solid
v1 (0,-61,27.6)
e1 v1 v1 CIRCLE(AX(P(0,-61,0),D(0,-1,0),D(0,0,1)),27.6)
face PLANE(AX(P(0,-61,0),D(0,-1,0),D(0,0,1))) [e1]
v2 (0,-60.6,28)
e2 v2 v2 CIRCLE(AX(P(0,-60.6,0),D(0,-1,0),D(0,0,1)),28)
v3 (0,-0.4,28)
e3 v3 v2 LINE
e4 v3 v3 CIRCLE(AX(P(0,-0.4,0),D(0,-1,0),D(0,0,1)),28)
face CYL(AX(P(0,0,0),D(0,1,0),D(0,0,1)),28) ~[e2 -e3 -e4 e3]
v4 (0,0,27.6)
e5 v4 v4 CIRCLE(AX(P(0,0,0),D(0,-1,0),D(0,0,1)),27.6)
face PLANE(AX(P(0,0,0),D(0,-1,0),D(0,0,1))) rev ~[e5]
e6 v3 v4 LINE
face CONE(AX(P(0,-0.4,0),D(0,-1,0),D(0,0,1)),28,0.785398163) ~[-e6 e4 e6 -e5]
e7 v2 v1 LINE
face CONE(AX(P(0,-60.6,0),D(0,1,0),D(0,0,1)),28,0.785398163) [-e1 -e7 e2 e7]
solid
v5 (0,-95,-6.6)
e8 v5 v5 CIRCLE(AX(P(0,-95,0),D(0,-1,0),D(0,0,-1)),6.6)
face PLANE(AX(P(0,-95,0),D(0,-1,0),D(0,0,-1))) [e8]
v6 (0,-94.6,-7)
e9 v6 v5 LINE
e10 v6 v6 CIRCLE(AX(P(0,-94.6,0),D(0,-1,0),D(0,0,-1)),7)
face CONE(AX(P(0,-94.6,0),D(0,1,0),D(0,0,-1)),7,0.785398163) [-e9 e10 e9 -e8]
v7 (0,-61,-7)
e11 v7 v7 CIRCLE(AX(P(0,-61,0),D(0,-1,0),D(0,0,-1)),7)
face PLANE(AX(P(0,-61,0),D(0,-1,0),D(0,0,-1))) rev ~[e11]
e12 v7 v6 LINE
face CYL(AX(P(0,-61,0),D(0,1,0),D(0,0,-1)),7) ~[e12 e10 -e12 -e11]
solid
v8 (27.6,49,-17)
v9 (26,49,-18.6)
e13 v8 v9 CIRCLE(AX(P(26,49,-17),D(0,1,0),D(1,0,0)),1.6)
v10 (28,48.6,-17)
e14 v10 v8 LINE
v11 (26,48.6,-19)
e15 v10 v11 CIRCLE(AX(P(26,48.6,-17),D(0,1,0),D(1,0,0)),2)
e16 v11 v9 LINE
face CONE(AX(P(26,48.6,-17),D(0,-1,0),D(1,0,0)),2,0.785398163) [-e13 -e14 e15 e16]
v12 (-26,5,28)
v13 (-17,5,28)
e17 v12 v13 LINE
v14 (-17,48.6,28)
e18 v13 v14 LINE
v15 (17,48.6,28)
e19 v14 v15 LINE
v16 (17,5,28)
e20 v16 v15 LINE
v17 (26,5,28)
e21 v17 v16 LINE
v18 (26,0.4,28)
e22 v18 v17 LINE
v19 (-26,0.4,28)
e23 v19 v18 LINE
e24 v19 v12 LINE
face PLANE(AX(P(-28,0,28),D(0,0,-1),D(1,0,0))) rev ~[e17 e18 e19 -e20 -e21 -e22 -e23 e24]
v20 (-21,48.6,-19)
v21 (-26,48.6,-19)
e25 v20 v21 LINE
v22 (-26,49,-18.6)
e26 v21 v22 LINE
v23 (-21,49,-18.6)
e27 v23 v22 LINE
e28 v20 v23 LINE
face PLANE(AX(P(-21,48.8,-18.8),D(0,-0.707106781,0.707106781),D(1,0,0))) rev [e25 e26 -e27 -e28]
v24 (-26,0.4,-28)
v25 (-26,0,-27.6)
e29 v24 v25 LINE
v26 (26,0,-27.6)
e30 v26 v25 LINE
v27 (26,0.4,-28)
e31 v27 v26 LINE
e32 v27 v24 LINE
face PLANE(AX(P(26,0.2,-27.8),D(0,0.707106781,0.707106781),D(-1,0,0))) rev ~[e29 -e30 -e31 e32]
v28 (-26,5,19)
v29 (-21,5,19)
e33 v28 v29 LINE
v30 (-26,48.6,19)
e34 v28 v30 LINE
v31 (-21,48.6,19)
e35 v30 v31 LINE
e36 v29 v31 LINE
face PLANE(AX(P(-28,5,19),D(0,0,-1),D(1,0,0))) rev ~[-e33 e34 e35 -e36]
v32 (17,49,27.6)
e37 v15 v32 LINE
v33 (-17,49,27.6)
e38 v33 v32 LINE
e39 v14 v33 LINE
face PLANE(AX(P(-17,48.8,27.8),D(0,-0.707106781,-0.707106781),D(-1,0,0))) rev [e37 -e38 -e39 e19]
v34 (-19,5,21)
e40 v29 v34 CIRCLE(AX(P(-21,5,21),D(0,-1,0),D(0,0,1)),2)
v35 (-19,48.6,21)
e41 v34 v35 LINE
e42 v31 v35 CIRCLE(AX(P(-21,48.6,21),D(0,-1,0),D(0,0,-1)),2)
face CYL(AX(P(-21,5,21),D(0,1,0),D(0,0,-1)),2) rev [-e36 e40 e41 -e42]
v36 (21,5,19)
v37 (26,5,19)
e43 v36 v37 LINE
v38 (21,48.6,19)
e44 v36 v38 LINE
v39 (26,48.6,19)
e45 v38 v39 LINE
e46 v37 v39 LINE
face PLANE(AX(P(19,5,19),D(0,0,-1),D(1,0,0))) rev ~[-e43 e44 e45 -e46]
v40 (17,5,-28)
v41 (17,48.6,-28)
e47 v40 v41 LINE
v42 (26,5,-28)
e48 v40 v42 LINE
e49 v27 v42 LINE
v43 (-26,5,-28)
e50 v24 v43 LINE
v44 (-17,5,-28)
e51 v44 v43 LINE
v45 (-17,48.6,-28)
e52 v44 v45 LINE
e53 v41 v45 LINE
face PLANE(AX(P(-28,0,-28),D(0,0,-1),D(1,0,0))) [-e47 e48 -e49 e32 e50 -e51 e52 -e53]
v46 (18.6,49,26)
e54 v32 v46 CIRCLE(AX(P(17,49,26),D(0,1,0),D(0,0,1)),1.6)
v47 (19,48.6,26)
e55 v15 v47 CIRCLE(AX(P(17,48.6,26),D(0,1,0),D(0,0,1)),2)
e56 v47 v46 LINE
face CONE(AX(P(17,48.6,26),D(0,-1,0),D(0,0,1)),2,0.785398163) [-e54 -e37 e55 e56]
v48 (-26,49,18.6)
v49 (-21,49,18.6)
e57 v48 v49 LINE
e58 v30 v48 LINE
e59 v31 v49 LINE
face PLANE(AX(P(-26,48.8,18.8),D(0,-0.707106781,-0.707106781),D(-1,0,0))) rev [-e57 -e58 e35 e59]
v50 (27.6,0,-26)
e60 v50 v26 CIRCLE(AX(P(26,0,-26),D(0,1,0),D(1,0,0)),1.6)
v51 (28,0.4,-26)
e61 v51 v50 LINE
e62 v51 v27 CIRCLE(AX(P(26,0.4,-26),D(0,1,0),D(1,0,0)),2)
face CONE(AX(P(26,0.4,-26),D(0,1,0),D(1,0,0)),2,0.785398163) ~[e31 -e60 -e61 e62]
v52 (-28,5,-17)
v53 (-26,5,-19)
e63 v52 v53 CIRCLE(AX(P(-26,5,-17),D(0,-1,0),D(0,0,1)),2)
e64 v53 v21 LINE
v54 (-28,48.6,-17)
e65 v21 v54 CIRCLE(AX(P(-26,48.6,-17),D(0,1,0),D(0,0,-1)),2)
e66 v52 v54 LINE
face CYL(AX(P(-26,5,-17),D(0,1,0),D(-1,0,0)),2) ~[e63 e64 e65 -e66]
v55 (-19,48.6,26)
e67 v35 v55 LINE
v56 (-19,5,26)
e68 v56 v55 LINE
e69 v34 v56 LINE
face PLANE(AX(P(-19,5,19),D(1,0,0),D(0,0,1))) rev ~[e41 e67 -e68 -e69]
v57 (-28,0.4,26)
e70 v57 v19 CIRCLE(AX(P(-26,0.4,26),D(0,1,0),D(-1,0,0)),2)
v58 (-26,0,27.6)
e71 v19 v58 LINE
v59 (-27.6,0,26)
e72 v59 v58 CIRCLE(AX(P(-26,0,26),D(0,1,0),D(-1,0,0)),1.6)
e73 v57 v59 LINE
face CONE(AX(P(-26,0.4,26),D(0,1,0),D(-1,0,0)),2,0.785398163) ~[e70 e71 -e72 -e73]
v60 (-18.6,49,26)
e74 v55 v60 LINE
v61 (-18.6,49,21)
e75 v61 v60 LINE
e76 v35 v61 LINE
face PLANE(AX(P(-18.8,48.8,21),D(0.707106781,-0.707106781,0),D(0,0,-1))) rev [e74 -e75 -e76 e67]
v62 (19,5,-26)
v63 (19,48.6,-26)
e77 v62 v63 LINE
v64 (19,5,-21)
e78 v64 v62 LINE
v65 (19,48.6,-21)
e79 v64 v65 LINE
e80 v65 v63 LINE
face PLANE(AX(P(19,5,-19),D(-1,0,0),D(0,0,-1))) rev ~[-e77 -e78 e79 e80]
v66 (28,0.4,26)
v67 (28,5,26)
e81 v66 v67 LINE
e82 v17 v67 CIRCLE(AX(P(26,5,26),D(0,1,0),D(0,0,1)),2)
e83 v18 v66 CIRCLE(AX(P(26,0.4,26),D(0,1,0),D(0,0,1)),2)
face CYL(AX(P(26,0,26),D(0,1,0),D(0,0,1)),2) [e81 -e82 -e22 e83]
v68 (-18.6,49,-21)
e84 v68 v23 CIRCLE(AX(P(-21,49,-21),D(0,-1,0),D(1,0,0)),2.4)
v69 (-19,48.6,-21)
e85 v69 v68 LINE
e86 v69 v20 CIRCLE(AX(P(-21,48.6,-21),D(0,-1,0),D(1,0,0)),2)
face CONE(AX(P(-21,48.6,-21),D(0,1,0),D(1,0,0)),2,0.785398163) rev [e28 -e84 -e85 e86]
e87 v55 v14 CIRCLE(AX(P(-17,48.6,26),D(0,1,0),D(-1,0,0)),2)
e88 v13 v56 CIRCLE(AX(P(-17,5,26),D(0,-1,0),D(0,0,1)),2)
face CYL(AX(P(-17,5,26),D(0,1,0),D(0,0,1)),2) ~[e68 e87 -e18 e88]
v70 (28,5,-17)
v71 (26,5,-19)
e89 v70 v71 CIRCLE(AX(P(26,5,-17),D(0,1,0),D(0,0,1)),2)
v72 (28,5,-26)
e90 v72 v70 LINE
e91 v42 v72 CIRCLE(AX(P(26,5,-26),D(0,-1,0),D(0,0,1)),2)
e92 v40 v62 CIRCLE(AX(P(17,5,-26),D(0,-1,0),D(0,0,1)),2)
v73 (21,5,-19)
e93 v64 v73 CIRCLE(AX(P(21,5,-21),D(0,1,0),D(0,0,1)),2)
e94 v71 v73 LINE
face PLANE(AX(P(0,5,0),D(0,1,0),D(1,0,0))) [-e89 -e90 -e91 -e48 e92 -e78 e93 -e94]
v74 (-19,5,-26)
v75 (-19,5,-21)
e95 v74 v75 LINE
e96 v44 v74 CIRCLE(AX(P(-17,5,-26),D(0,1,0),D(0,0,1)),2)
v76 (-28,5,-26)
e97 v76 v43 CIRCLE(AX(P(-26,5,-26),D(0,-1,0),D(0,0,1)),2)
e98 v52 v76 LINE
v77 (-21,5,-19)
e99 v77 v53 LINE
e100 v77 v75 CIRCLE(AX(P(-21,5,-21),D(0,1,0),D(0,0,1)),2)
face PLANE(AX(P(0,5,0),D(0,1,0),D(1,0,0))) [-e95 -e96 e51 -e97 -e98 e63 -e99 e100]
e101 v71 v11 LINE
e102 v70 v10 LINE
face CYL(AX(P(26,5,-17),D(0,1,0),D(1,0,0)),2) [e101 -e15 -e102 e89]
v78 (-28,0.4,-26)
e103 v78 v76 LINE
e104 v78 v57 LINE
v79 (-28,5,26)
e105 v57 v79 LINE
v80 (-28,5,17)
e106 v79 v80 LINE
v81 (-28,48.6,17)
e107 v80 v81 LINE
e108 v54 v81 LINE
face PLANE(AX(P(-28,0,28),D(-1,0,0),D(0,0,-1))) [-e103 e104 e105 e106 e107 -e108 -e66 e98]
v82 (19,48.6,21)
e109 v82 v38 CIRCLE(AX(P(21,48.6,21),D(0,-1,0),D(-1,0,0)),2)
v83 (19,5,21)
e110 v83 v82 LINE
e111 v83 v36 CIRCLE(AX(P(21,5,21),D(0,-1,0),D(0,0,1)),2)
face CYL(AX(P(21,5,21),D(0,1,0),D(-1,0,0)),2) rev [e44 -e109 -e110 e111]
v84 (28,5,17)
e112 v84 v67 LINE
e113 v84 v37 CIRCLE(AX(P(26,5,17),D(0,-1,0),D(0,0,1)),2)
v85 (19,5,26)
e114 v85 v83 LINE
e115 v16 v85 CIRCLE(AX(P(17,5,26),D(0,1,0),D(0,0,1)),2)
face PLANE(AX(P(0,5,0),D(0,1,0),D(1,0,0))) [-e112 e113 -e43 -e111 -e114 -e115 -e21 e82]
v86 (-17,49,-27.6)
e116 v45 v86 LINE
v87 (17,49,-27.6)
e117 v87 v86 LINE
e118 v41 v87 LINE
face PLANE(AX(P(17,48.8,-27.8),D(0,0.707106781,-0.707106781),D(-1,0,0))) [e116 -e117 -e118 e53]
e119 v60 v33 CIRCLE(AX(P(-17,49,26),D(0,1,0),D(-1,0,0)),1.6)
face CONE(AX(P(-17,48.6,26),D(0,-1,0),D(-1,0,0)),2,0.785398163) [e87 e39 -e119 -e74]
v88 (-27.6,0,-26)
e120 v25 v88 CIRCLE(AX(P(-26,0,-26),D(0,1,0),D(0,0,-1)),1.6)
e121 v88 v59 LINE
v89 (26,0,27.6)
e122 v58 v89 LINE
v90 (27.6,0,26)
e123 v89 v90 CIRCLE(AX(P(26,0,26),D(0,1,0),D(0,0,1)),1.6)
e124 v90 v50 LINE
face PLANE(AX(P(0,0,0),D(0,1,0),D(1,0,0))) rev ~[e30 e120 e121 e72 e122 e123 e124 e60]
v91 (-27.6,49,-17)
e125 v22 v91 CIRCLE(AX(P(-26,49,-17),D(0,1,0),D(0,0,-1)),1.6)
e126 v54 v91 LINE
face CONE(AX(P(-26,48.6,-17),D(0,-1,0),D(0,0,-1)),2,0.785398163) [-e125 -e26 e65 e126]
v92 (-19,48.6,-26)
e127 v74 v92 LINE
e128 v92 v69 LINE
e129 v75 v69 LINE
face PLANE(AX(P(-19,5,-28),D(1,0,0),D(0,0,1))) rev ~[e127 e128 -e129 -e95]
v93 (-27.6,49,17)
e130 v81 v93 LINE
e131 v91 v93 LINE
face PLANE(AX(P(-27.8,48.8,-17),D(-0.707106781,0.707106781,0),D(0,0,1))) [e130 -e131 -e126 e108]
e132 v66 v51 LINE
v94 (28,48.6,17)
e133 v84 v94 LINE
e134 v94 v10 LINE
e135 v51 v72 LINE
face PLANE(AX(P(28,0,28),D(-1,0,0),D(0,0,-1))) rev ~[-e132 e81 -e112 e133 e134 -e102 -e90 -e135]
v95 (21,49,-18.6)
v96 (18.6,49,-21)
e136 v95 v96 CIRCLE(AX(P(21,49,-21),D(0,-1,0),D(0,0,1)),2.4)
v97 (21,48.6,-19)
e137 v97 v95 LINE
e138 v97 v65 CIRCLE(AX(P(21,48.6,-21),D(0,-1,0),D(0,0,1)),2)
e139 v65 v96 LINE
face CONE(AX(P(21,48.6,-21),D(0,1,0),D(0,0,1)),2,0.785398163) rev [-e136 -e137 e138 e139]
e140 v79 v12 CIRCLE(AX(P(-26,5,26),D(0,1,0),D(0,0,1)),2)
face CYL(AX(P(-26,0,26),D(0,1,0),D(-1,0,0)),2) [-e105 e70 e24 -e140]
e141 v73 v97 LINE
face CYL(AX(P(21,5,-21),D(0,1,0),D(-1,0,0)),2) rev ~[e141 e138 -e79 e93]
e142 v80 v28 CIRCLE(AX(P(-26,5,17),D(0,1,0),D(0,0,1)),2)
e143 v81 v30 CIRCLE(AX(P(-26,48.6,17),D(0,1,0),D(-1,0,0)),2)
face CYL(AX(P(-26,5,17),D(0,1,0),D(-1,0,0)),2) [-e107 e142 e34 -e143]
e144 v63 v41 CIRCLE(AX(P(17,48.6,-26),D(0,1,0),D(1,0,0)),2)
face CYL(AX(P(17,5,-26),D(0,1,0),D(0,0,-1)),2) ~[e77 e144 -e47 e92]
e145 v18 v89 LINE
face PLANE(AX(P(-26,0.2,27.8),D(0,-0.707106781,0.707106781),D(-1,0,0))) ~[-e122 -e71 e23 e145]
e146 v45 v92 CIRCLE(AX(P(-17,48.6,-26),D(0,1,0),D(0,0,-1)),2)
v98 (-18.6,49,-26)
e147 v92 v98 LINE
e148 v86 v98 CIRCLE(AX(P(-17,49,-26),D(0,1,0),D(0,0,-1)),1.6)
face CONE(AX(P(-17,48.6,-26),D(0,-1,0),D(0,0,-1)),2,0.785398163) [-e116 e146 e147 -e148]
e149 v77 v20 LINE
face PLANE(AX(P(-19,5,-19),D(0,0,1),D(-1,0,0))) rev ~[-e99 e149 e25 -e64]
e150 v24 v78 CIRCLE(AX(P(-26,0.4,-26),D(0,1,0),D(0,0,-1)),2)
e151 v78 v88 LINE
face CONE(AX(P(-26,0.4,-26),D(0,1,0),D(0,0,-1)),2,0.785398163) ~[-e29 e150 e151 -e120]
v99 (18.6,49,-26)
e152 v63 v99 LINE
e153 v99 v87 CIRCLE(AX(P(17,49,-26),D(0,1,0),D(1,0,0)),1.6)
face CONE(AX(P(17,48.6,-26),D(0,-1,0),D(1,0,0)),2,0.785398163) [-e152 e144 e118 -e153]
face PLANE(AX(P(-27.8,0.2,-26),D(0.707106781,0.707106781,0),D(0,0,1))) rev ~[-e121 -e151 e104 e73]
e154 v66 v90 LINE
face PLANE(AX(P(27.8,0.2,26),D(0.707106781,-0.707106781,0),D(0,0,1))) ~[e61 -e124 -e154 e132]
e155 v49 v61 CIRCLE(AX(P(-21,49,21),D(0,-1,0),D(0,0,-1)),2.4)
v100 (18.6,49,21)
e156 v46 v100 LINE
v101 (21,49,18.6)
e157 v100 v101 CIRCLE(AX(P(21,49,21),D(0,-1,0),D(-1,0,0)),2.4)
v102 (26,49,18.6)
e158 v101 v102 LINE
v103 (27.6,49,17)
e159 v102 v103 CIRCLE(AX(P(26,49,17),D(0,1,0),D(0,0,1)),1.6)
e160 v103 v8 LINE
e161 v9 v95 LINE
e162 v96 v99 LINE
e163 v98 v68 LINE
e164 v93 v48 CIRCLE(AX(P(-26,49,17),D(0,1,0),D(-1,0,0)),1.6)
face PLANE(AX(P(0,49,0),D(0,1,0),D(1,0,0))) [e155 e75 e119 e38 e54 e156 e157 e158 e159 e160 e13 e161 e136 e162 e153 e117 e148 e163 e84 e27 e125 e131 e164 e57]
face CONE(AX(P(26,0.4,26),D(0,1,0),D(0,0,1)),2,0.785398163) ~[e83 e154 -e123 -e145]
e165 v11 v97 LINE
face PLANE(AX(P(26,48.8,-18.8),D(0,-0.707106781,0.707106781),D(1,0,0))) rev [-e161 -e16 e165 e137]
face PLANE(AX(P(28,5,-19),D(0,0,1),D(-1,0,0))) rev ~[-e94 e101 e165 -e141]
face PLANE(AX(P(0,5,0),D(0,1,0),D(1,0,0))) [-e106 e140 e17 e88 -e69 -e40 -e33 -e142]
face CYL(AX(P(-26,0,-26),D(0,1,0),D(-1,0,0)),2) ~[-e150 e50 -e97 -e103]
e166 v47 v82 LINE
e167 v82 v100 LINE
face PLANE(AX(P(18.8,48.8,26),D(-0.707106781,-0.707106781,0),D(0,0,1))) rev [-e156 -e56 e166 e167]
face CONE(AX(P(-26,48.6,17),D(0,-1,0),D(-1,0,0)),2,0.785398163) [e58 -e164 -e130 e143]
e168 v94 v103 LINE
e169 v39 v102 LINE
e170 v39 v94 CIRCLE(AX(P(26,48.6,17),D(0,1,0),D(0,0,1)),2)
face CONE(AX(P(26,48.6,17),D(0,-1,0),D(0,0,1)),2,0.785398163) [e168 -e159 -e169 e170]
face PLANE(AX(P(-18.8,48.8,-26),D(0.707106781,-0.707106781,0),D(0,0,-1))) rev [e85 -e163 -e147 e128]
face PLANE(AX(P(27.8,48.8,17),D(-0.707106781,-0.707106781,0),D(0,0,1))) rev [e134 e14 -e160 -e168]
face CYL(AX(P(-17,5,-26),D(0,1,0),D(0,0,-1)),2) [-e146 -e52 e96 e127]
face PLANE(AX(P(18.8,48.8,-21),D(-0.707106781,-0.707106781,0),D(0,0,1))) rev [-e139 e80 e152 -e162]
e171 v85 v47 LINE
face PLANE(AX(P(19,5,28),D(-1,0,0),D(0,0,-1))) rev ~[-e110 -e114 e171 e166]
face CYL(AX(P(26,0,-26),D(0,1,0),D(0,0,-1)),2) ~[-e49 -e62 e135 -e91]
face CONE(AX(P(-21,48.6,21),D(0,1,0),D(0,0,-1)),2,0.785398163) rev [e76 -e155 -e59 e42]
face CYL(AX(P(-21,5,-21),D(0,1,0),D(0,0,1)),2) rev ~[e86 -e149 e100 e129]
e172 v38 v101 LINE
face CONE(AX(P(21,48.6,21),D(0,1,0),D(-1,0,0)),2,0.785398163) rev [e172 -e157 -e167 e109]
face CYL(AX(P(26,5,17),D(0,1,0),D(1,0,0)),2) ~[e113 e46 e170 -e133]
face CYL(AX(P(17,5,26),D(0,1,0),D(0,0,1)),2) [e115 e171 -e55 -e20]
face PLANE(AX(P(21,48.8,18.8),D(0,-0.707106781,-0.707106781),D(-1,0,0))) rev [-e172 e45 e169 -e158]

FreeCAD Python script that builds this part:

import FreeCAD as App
import Part
import Sketcher

V = App.Vector
Q = App.Units.Quantity


def edges_at(feature, points):
    """Names of the edges that pass closest to the given points."""
    edges = feature.Shape.Edges
    near = lambda p: min(range(len(edges)), key=lambda i: edges[i].distToShape(Part.Vertex(*p))[0])
    return sorted({f"Edge{near(p) + 1}" for p in points})


def add_polygon(sketch, points):
    """Adds a closed chain of lines whose ends are joined by coincident constraints."""
    first, n = sketch.GeometryCount, len(points)
    for a, b in zip(points, points[1:] + points[:1]):
        sketch.addGeometry(Part.LineSegment(App.Vector(*a, 0), App.Vector(*b, 0)), False)
    for i in range(n):
        sketch.addConstraint(Sketcher.Constraint("Coincident", first + i, 2, first + (i + 1) % n, 1))

doc = App.newDocument("Part")
body = doc.addObject("PartDesign::Body", "Body")

# Sketch on XZ plane
sketch1 = body.newObject("Sketcher::SketchObject", "Sketch")
sketch1.AttachmentSupport = (doc.getObject("XZ_Plane"), [""])
sketch1.MapMode = "FlatFace"
add_polygon(sketch1, [(-28, -28), (-28, 28), (28, 28), (28, -28)])  # lines 0-3
sketch1.addConstraint([
    Sketcher.Constraint("Vertical", 0),
    Sketcher.Constraint("Horizontal", 1),
    Sketcher.Constraint("Vertical", 2),
    Sketcher.Constraint("Horizontal", 3),
    Sketcher.Constraint("Symmetric", 0, 2, 2, 2, -1, 1),
    Sketcher.Constraint("Equal", 3, 0),
    Sketcher.Constraint("DistanceX", 1, 1, 1, 2, Q("56 mm")),
])
pad1 = body.newObject("PartDesign::Pad", "Pad")
pad1.Profile = sketch1
pad1.Length = 5
pad1.Reversed = True

# Sketch on XZ plane
sketch2 = body.newObject("Sketcher::SketchObject", "Sketch001")
sketch2.AttachmentSupport = (doc.getObject("XZ_Plane"), [""])
sketch2.MapMode = "FlatFace"
sketch2.AttachmentOffset = App.Placement(V(0, 0, -5), App.Rotation())
add_polygon(sketch2, [(-19, -19), (-28, -19), (-28, 19), (-19, 19), (-19, 28), (19, 28), (19, 19), (28, 19), (28, -19), (19, -19), (19, -28), (-19, -28)])  # lines 0-11
sketch2.addConstraint([
    Sketcher.Constraint("Horizontal", 0),
    Sketcher.Constraint("Vertical", 1),
    Sketcher.Constraint("Horizontal", 2),
    Sketcher.Constraint("Vertical", 3),
    Sketcher.Constraint("Horizontal", 4),
    Sketcher.Constraint("Vertical", 5),
    Sketcher.Constraint("Horizontal", 6),
    Sketcher.Constraint("Vertical", 7),
    Sketcher.Constraint("Horizontal", 8),
    Sketcher.Constraint("Vertical", 9),
    Sketcher.Constraint("Horizontal", 10),
    Sketcher.Constraint("Vertical", 11),
    Sketcher.Constraint("Symmetric", 0, 2, 6, 2, -1, 1),
    Sketcher.Constraint("Symmetric", 2, 2, 8, 2, -1, 1),
    Sketcher.Constraint("Symmetric", 4, 2, 10, 2, -1, 1),
    Sketcher.Constraint("Symmetric", 2, 2, 5, 2, -2),
    Sketcher.Constraint("Equal", 10, 1),
    Sketcher.Constraint("Equal", 8, 3),
    Sketcher.Constraint("DistanceX", 0, 2, 0, 1, Q("9 mm")),
    Sketcher.Constraint("DistanceX", 4, 1, 4, 2, Q("38 mm")),
])
pad2 = body.newObject("PartDesign::Pad", "Pad001")
pad2.Profile = sketch2
pad2.Length = 44
pad2.Reversed = True
doc.recompute()

fillet = body.newObject("PartDesign::Fillet", "Fillet")
fillet.Base = (pad2, edges_at(pad2, [
    (-28, 27, 19),
    (-19, 27, 19),
    (-19, 27, 28),
    (19, 27, 28),
    (19, 27, 19),
    (28, 27, 19),
    (28, 27, -19),
    (19, 27, -19),
    (19, 27, -28),
    (-19, 27, -28),
    (-19, 27, -19),
    (-28, 27, -19),
    (28, 2.5, 28),
    (-28, 2.5, 28),
    (-28, 2.5, -28),
    (28, 2.5, -28),
]))
fillet.Radius = 2
doc.recompute()

chamfer = body.newObject("PartDesign::Chamfer", "Chamfer")
chamfer.Base = (fillet, edges_at(fillet, [
    (-19.586, 49, 19.586),
    (19.586, 49, 19.586),
    (19.586, 49, -19.586),
    (-19.586, 49, -19.586),
    (0, 0, 28),
    (0, 49, 28),
    (28, 0, 0),
    (-28, 0, 0),
    (0, 0, -28),
    (-27.414, 0, -27.414),
    (27.414, 0, -27.414),
    (27.414, 0, 27.414),
    (-27.414, 0, 27.414),
    (-28, 49, 0),
    (-19, 49, 23.5),
    (-23.5, 49, 19),
    (19, 49, 23.5),
    (23.5, 49, 19),
    (28, 49, 0),
    (23.5, 49, -19),
    (19, 49, -23.5),
    (0, 49, -28),
    (-19, 49, -23.5),
    (-23.5, 49, -19),
    (-27.414, 49, -18.414),
    (-18.414, 49, -27.414),
    (18.414, 49, -27.414),
    (27.414, 49, -18.414),
    (27.414, 49, 18.414),
    (18.414, 49, 27.414),
    (-27.414, 49, 18.414),
    (-18.414, 49, 27.414),
]))
chamfer.Size = 0.4
body2 = doc.addObject("PartDesign::Body", "Body001")

# Sketch on XZ plane
sketch3 = body2.newObject("Sketcher::SketchObject", "Sketch002")
sketch3.AttachmentSupport = (doc.getObject("XZ_Plane001"), [""])
sketch3.MapMode = "FlatFace"
sketch3.addGeometry(Part.Circle(V(0, 0, 0), V(0, 0, 1), 28), False)
sketch3.addConstraint([
    Sketcher.Constraint("Coincident", 0, 3, -1, 1),
    Sketcher.Constraint("Diameter", 0, Q("56 mm")),
])
pad3 = body2.newObject("PartDesign::Pad", "Pad002")
pad3.Profile = sketch3
pad3.Length = 61
doc.recompute()

chamfer2 = body2.newObject("PartDesign::Chamfer", "Chamfer001")
chamfer2.Base = (pad3, edges_at(pad3, [(0, 0, -28), (0, -61, -28)]))
chamfer2.Size = 0.4
body3 = doc.addObject("PartDesign::Body", "Body002")

# Sketch on XZ plane
sketch4 = body3.newObject("Sketcher::SketchObject", "Sketch003")
sketch4.AttachmentSupport = (doc.getObject("XZ_Plane002"), [""])
sketch4.MapMode = "FlatFace"
sketch4.AttachmentOffset = App.Placement(V(0, 0, 61), App.Rotation())
sketch4.addGeometry(Part.Circle(V(0, 0, 0), V(0, 0, 1), 7), False)
sketch4.addConstraint([
    Sketcher.Constraint("Coincident", 0, 3, -1, 1),
    Sketcher.Constraint("Diameter", 0, Q("14 mm")),
])
pad4 = body3.newObject("PartDesign::Pad", "Pad003")
pad4.Profile = sketch4
pad4.Length = 34
doc.recompute()

chamfer3 = body3.newObject("PartDesign::Chamfer", "Chamfer002")
chamfer3.Base = (pad4, edges_at(pad4, [(0, -95, 7)]))
chamfer3.Size = 0.4

doc.recompute()
